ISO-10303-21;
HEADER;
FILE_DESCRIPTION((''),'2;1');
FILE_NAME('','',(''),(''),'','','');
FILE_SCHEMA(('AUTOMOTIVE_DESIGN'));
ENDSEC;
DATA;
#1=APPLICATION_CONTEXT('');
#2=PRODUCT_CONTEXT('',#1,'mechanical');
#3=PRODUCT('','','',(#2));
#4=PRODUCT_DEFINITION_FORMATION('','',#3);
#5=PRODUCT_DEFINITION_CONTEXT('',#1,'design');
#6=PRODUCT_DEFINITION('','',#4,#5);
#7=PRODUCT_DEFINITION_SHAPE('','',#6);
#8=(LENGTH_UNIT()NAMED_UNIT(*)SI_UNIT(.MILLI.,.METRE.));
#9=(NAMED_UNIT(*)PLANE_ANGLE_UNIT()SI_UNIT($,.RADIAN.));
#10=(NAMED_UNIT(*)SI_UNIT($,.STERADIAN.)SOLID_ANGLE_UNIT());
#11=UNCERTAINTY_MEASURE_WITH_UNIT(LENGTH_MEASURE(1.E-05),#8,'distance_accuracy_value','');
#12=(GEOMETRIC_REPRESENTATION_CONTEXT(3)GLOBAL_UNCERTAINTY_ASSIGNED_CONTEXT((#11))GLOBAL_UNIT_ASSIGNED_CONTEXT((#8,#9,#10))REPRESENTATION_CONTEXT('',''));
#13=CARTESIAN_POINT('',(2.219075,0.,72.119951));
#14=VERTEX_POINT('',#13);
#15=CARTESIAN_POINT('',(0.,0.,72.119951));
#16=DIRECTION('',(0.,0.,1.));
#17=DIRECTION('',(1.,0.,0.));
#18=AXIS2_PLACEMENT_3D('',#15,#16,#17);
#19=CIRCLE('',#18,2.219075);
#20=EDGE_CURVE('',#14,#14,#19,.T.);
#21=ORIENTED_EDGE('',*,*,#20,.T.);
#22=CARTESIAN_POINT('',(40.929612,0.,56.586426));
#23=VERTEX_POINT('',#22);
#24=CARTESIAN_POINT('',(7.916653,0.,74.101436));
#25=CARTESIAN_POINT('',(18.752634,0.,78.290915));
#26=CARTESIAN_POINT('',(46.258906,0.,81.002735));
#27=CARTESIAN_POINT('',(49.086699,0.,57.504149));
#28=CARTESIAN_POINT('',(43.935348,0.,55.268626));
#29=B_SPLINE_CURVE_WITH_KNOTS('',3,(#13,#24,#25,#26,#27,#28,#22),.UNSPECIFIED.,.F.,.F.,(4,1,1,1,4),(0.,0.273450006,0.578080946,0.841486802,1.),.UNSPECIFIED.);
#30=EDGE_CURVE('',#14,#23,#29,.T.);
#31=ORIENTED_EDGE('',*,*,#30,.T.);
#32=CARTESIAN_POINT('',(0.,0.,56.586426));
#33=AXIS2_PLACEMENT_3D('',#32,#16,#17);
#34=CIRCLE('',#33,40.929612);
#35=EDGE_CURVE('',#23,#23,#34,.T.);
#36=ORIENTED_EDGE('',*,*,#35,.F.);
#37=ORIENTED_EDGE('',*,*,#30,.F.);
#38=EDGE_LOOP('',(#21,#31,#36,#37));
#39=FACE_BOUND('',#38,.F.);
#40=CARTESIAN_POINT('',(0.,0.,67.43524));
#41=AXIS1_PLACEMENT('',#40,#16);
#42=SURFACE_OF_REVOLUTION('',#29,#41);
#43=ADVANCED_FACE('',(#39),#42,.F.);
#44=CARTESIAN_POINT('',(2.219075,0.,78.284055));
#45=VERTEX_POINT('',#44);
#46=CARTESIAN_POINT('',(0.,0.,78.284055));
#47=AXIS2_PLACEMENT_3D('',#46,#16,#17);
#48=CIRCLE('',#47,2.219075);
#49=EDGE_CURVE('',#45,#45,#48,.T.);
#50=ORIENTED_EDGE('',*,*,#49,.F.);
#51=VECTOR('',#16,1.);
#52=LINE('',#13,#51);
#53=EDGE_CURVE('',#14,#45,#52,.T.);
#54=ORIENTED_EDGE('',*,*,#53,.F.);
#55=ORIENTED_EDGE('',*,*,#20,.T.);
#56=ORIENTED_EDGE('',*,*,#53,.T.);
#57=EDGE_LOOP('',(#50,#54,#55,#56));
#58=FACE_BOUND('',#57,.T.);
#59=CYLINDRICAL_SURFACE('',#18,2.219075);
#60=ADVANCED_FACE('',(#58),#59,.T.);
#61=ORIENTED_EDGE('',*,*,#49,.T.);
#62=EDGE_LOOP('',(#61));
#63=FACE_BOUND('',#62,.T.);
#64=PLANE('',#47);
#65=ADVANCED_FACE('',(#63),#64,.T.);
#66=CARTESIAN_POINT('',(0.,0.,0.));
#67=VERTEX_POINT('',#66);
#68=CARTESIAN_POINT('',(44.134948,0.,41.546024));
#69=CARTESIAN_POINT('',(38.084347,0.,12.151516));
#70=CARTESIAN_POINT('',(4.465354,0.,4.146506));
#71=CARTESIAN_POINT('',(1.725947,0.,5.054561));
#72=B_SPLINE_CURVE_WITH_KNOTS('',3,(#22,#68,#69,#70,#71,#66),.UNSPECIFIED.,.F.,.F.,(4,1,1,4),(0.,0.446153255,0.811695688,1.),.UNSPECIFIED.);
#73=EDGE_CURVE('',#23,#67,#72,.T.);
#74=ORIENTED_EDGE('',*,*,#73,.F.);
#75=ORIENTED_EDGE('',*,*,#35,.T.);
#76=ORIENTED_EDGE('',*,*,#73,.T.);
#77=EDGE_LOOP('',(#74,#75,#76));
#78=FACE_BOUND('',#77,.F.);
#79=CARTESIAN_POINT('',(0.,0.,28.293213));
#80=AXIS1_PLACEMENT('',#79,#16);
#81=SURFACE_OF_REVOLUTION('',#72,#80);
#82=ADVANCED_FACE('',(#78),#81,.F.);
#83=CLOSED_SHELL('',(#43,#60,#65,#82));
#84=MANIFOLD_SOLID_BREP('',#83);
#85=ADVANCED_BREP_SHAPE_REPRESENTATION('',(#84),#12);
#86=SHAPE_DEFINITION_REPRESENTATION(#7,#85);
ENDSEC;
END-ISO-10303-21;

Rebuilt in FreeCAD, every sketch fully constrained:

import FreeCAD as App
import Part
import Sketcher

doc = App.newDocument("Part")
params = doc.addObject("Spreadsheet::Sheet", "Params")
for row, (alias, value) in enumerate([
    ("revolution_angle", "360 deg"),
    ("revolution2_angle", "360 deg"),
], start=1):
    params.set(f"A{row}", alias)
    params.set(f"B{row}", "=" + value)
    params.setAlias(f"B{row}", alias)

body = doc.addObject("PartDesign::Body", "Body")

# Sketch on XZ plane
sketch1 = body.newObject("Sketcher::SketchObject", "Sketch")
sketch1.AttachmentSupport = (doc.getObject("XZ_Plane"), [""])
sketch1.MapMode = "FlatFace"
sketch1.addGeometry([
    Part.LineSegment(App.Vector(0, 56.586426, 0), App.Vector(0, 0, 0)),
    Part.BSplineCurve([App.Vector(40.929612, 56.586426, 0), App.Vector(44.134948, 41.546024, 0), App.Vector(38.084347, 12.151516, 0), App.Vector(4.465354, 4.146506, 0), App.Vector(1.725947, 5.054561, 0), App.Vector(0, 0, 0)], [4, 1, 1, 4], [0, 0.446153255, 0.811695688, 1], False, 3, [1, 1, 1, 1, 1, 1], False),
    Part.LineSegment(App.Vector(40.929612, 56.586426, 0), App.Vector(0, 56.586426, 0)),
], False)
sketch1.addConstraint([
    Sketcher.Constraint("Block", 1),
    Sketcher.Constraint("Coincident", 0, 2, 1, 2),
    Sketcher.Constraint("Coincident", 1, 1, 2, 1),
    Sketcher.Constraint("Coincident", 2, 2, 0, 1),
    Sketcher.Constraint("Vertical", 0),
    Sketcher.Constraint("Horizontal", 2),
])
revolution = body.newObject("PartDesign::Revolution", "Revolution")
revolution.Profile = sketch1
revolution.ReferenceAxis = (sketch1, ["V_Axis"])
revolution.setExpression("Angle", "Params.revolution_angle")

# Sketch on XZ plane
sketch2 = body.newObject("Sketcher::SketchObject", "Sketch001")
sketch2.AttachmentSupport = (doc.getObject("XZ_Plane"), [""])
sketch2.MapMode = "FlatFace"
sketch2.addGeometry([
    Part.LineSegment(App.Vector(0, 56.586426, 0), App.Vector(40.929612, 56.586426, 0)),  # 0
    Part.BSplineCurve([App.Vector(2.219075, 72.119951, 0), App.Vector(7.916653, 74.101436, 0), App.Vector(18.752634, 78.290915, 0), App.Vector(46.258906, 81.002735, 0), App.Vector(49.086699, 57.504149, 0), App.Vector(43.935348, 55.268626, 0), App.Vector(40.929612, 56.586426, 0)], [4, 1, 1, 1, 4], [0, 0.273450006, 0.578080946, 0.841486802, 1], False, 3, [1, 1, 1, 1, 1, 1, 1], False),  # 1
    Part.LineSegment(App.Vector(2.219075, 72.119951, 0), App.Vector(2.219075, 78.284055, 0)),  # 2
    Part.LineSegment(App.Vector(2.219075, 78.284055, 0), App.Vector(0, 78.284055, 0)),  # 3
    Part.LineSegment(App.Vector(0, 78.284055, 0), App.Vector(0, 56.586426, 0)),  # 4
], False)
sketch2.addConstraint([
    Sketcher.Constraint("Block", 1),
    Sketcher.Constraint("Coincident", 0, 2, 1, 2),
    Sketcher.Constraint("Coincident", 1, 1, 2, 1),
    Sketcher.Constraint("Coincident", 2, 2, 3, 1),
    Sketcher.Constraint("Coincident", 3, 2, 4, 1),
    Sketcher.Constraint("Coincident", 4, 2, 0, 1),
    Sketcher.Constraint("Horizontal", 0),
    Sketcher.Constraint("Vertical", 2),
    Sketcher.Constraint("Horizontal", 3),
    Sketcher.Constraint("Vertical", 4),
    Sketcher.Constraint("PointOnObject", 3, 2, -2),
    Sketcher.Constraint("DistanceY", 4, 2, 4, 1, 21.697629),
])
revolution2 = body.newObject("PartDesign::Revolution", "Revolution001")
revolution2.Profile = sketch2
revolution2.ReferenceAxis = (sketch2, ["V_Axis"])
revolution2.setExpression("Angle", "Params.revolution2_angle")

doc.recompute()
